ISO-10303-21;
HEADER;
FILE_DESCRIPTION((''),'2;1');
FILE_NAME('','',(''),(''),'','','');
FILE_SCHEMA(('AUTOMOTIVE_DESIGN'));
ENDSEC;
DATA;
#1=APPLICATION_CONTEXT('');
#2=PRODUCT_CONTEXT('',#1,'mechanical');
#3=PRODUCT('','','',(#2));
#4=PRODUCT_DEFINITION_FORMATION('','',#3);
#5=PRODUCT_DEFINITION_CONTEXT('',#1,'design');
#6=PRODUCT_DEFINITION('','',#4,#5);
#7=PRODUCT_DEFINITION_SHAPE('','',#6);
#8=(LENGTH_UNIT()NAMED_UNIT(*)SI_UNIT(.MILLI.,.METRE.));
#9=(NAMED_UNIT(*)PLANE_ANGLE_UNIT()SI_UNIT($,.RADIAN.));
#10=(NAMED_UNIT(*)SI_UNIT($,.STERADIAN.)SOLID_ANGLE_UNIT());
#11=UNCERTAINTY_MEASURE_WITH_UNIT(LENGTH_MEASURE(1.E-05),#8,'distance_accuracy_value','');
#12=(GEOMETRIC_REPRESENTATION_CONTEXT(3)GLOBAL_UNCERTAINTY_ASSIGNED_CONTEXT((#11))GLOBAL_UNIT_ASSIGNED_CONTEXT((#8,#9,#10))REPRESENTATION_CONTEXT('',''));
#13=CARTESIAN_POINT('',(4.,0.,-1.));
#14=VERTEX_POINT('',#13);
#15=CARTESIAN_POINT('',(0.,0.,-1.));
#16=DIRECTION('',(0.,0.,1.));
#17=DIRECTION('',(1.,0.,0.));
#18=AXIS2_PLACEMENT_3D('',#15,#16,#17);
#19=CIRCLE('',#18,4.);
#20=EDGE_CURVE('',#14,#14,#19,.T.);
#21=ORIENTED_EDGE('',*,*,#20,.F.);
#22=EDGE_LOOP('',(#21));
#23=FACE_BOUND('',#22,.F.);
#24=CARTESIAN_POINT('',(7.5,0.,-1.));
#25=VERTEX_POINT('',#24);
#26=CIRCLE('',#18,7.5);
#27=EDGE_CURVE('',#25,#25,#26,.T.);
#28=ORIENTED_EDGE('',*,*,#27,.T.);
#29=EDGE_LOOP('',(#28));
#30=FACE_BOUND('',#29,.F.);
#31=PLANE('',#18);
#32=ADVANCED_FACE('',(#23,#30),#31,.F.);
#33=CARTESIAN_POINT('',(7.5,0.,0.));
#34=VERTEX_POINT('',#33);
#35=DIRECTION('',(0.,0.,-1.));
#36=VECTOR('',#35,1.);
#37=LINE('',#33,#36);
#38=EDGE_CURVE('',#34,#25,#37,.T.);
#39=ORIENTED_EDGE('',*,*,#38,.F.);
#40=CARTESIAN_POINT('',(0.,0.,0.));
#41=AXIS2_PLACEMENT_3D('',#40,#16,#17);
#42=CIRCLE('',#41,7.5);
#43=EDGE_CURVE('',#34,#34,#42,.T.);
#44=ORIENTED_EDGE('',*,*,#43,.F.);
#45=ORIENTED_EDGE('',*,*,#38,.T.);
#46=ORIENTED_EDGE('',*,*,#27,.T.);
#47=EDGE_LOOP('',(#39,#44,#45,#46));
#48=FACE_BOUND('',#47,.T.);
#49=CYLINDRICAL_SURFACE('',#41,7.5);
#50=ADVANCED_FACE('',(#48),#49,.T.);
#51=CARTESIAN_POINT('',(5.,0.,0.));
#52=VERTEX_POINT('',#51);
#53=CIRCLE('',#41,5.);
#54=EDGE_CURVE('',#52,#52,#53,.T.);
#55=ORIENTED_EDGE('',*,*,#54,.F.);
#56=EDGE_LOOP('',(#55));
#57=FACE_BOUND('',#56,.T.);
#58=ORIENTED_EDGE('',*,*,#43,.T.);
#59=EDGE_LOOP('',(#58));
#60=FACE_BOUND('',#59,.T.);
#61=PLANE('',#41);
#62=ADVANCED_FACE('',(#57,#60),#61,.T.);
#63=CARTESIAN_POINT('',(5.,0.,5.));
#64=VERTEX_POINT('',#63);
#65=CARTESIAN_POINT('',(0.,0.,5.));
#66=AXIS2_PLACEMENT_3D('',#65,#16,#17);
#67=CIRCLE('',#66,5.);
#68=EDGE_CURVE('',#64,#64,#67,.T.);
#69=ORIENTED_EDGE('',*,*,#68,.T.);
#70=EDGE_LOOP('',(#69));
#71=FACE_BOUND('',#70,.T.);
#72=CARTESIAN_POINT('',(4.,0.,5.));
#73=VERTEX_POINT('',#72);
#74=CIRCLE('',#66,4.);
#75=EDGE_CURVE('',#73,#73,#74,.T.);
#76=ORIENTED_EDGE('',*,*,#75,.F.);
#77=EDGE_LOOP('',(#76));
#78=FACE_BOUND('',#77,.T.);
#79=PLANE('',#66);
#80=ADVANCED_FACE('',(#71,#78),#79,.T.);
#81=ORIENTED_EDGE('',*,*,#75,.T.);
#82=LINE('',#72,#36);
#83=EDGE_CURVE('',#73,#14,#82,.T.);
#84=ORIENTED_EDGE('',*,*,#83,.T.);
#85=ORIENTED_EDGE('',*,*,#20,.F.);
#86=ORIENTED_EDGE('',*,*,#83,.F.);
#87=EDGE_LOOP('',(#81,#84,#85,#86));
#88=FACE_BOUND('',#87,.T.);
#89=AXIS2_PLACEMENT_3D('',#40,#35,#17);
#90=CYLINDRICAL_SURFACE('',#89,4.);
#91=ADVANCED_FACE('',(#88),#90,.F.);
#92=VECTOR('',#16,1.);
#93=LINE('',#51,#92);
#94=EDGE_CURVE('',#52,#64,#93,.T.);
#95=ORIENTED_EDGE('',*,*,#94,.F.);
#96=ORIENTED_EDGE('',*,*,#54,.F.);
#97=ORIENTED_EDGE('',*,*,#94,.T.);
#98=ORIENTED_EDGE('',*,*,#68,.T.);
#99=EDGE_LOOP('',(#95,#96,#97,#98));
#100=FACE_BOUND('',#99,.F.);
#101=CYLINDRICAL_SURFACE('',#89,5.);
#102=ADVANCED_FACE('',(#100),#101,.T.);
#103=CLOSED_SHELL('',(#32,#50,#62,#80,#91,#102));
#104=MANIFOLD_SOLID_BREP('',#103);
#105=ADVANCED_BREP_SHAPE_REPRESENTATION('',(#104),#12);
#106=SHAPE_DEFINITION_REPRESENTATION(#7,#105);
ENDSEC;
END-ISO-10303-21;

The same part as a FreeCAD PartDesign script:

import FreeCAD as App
import Part
import Sketcher
from FreeCAD import Vector

doc = App.newDocument("Part")
body = doc.addObject("PartDesign::Body", "Body")

# Sketch on XY plane
sketch1 = body.newObject("Sketcher::SketchObject", "Sketch")
sketch1.AttachmentSupport = (doc.getObject("XY_Plane"), [""])
sketch1.MapMode = "FlatFace"
sketch1.addGeometry(Part.Circle(Vector(0, 0, 0), Vector(0, 0, 1), 5), False)
sketch1.addGeometry(Part.Circle(Vector(0, 0, 0), Vector(0, 0, 1), 4), False)
sketch1.addConstraint(Sketcher.Constraint("Coincident", 0, 3, -1, 1))
sketch1.addConstraint(Sketcher.Constraint("Coincident", 1, 3, -1, 1))
sketch1.addConstraint(Sketcher.Constraint("Diameter", 0, 10.0))
sketch1.addConstraint(Sketcher.Constraint("Diameter", 1, 8.0))
pad1 = body.newObject("PartDesign::Pad", "Pad")
pad1.Profile = sketch1
pad1.Length = 5

# Sketch on XY plane
sketch2 = body.newObject("Sketcher::SketchObject", "Sketch001")
sketch2.AttachmentSupport = (doc.getObject("XY_Plane"), [""])
sketch2.MapMode = "FlatFace"
sketch2.addGeometry(Part.Circle(Vector(0, 0, 0), Vector(0, 0, 1), 7.5), False)
sketch2.addGeometry(Part.Circle(Vector(0, 0, 0), Vector(0, 0, 1), 4), False)
sketch2.addConstraint(Sketcher.Constraint("Coincident", 0, 3, -1, 1))
sketch2.addConstraint(Sketcher.Constraint("Coincident", 1, 3, -1, 1))
sketch2.addConstraint(Sketcher.Constraint("Diameter", 0, 15.0))
sketch2.addConstraint(Sketcher.Constraint("Diameter", 1, 8.0))
pad2 = body.newObject("PartDesign::Pad", "Pad001")
pad2.Profile = sketch2
pad2.Length = 1
pad2.Reversed = True

doc.recompute()
